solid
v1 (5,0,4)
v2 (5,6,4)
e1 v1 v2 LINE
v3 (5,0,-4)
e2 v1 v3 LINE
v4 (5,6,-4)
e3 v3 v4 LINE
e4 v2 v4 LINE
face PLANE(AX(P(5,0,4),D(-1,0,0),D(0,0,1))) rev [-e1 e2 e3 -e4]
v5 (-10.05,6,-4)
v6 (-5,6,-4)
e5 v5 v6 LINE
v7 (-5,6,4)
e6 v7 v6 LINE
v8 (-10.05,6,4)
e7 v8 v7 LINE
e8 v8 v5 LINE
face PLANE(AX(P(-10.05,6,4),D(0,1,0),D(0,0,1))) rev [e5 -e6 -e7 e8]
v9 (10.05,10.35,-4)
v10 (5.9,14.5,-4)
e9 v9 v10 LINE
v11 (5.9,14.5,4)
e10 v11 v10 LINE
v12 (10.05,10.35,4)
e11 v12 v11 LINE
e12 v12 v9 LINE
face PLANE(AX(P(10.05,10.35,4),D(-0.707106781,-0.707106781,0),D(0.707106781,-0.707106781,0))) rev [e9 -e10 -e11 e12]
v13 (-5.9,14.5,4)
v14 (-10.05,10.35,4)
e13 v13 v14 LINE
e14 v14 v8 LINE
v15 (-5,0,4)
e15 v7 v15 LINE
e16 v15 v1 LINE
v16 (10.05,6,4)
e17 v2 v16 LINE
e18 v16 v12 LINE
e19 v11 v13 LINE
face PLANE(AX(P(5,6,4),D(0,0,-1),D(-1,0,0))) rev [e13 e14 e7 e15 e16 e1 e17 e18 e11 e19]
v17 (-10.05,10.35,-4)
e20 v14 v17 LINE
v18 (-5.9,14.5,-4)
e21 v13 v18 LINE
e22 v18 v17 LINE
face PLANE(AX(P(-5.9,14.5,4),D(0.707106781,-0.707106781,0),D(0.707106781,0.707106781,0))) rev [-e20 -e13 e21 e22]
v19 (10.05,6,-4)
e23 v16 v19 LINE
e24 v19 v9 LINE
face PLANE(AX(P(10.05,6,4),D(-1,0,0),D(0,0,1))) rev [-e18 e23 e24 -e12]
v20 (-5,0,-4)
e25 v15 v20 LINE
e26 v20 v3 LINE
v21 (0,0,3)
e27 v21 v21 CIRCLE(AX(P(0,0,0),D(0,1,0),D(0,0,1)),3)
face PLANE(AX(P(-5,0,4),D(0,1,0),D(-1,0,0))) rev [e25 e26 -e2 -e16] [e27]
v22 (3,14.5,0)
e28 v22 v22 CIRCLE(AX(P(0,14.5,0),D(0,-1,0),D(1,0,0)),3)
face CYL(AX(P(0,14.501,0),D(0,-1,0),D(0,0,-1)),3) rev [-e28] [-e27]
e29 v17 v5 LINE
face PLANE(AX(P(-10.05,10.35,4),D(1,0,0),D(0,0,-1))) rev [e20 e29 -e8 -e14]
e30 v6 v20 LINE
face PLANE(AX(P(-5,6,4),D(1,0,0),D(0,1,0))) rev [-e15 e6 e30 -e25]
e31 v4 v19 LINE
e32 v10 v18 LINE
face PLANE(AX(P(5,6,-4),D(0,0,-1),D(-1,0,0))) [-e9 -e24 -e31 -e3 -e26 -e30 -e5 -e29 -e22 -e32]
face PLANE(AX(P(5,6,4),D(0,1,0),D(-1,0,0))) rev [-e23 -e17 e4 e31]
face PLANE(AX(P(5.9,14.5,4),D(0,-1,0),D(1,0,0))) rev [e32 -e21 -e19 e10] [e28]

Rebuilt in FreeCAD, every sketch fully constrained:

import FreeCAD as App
import Part
import Sketcher
Q = App.Units.Quantity


def add_polygon(sketch, points):
    """Adds a closed chain of lines whose ends are joined by coincident constraints."""
    first, n = sketch.GeometryCount, len(points)
    for a, b in zip(points, points[1:] + points[:1]):
        sketch.addGeometry(Part.LineSegment(App.Vector(*a, 0), App.Vector(*b, 0)), False)
    for i in range(n):
        sketch.addConstraint(Sketcher.Constraint("Coincident", first + i, 2, first + (i + 1) % n, 1))

doc = App.newDocument("Part")
body = doc.addObject("PartDesign::Body", "Body")

sketch1 = doc.addObject("Sketcher::SketchObject", "Sketch")
body.addObject(sketch1)
sketch1.AttachmentSupport = (doc.XY_Plane, [""])
sketch1.MapMode = "FlatFace"
add_polygon(sketch1, [(-5, 0), (5, 0), (5, 6), (10.05, 6), (10.05, 10.35), (5.9, 14.5), (-5.9, 14.5), (-10.05, 10.35), (-10.05, 6), (-5, 6)])
sketch1.addConstraint([
    Sketcher.Constraint("Horizontal", 0),
    Sketcher.Constraint("Vertical", 1),
    Sketcher.Constraint("Horizontal", 2),
    Sketcher.Constraint("Vertical", 3),
    Sketcher.Constraint("Horizontal", 5),
    Sketcher.Constraint("Vertical", 7),
    Sketcher.Constraint("Horizontal", 8),
    Sketcher.Constraint("Vertical", 9),
    Sketcher.Constraint("Symmetric", 0, 2, 9, 2, -1, 1),
    Sketcher.Constraint("Symmetric", 3, 2, 6, 2, -2),
    Sketcher.Constraint("Perpendicular", 4, 6),
    Sketcher.Constraint("Horizontal", 2, 2, 7, 2),
    Sketcher.Constraint("Equal", 4, 6),
    Sketcher.Constraint("DistanceX", 0, 1, 0, 2, Q("10 mm")),
    Sketcher.Constraint("DistanceY", 1, 1, 1, 2, Q("6 mm")),
    Sketcher.Constraint("DistanceX", 5, 2, 5, 1, Q("11.8 mm")),
    Sketcher.Constraint("DistanceX", 2, 1, 2, 2, Q("5.05 mm")),
    Sketcher.Constraint("DistanceY", 3, 1, 3, 2, Q("4.35 mm")),
])
pad1 = doc.addObject("PartDesign::Pad", "Pad")
body.addObject(pad1)
pad1.Profile = sketch1
pad1.Length = 8
pad1.Midplane = True

sketch2 = doc.addObject("Sketcher::SketchObject", "Sketch001")
body.addObject(sketch2)
sketch2.AttachmentSupport = (doc.XZ_Plane, [""])
sketch2.MapMode = "FlatFace"
sketch2.addGeometry(Part.Circle(App.Vector(0, 0, 0), App.Vector(0, 0, 1), 3), False)
sketch2.addConstraint([
    Sketcher.Constraint("Coincident", 0, 3, -1, 1),
    Sketcher.Constraint("Diameter", 0, Q("6 mm")),
])
pocket1 = doc.addObject("PartDesign::Pocket", "Pocket")
body.addObject(pocket1)
pocket1.Profile = sketch2
pocket1.Type = "UpToFirst"

doc.recompute()
